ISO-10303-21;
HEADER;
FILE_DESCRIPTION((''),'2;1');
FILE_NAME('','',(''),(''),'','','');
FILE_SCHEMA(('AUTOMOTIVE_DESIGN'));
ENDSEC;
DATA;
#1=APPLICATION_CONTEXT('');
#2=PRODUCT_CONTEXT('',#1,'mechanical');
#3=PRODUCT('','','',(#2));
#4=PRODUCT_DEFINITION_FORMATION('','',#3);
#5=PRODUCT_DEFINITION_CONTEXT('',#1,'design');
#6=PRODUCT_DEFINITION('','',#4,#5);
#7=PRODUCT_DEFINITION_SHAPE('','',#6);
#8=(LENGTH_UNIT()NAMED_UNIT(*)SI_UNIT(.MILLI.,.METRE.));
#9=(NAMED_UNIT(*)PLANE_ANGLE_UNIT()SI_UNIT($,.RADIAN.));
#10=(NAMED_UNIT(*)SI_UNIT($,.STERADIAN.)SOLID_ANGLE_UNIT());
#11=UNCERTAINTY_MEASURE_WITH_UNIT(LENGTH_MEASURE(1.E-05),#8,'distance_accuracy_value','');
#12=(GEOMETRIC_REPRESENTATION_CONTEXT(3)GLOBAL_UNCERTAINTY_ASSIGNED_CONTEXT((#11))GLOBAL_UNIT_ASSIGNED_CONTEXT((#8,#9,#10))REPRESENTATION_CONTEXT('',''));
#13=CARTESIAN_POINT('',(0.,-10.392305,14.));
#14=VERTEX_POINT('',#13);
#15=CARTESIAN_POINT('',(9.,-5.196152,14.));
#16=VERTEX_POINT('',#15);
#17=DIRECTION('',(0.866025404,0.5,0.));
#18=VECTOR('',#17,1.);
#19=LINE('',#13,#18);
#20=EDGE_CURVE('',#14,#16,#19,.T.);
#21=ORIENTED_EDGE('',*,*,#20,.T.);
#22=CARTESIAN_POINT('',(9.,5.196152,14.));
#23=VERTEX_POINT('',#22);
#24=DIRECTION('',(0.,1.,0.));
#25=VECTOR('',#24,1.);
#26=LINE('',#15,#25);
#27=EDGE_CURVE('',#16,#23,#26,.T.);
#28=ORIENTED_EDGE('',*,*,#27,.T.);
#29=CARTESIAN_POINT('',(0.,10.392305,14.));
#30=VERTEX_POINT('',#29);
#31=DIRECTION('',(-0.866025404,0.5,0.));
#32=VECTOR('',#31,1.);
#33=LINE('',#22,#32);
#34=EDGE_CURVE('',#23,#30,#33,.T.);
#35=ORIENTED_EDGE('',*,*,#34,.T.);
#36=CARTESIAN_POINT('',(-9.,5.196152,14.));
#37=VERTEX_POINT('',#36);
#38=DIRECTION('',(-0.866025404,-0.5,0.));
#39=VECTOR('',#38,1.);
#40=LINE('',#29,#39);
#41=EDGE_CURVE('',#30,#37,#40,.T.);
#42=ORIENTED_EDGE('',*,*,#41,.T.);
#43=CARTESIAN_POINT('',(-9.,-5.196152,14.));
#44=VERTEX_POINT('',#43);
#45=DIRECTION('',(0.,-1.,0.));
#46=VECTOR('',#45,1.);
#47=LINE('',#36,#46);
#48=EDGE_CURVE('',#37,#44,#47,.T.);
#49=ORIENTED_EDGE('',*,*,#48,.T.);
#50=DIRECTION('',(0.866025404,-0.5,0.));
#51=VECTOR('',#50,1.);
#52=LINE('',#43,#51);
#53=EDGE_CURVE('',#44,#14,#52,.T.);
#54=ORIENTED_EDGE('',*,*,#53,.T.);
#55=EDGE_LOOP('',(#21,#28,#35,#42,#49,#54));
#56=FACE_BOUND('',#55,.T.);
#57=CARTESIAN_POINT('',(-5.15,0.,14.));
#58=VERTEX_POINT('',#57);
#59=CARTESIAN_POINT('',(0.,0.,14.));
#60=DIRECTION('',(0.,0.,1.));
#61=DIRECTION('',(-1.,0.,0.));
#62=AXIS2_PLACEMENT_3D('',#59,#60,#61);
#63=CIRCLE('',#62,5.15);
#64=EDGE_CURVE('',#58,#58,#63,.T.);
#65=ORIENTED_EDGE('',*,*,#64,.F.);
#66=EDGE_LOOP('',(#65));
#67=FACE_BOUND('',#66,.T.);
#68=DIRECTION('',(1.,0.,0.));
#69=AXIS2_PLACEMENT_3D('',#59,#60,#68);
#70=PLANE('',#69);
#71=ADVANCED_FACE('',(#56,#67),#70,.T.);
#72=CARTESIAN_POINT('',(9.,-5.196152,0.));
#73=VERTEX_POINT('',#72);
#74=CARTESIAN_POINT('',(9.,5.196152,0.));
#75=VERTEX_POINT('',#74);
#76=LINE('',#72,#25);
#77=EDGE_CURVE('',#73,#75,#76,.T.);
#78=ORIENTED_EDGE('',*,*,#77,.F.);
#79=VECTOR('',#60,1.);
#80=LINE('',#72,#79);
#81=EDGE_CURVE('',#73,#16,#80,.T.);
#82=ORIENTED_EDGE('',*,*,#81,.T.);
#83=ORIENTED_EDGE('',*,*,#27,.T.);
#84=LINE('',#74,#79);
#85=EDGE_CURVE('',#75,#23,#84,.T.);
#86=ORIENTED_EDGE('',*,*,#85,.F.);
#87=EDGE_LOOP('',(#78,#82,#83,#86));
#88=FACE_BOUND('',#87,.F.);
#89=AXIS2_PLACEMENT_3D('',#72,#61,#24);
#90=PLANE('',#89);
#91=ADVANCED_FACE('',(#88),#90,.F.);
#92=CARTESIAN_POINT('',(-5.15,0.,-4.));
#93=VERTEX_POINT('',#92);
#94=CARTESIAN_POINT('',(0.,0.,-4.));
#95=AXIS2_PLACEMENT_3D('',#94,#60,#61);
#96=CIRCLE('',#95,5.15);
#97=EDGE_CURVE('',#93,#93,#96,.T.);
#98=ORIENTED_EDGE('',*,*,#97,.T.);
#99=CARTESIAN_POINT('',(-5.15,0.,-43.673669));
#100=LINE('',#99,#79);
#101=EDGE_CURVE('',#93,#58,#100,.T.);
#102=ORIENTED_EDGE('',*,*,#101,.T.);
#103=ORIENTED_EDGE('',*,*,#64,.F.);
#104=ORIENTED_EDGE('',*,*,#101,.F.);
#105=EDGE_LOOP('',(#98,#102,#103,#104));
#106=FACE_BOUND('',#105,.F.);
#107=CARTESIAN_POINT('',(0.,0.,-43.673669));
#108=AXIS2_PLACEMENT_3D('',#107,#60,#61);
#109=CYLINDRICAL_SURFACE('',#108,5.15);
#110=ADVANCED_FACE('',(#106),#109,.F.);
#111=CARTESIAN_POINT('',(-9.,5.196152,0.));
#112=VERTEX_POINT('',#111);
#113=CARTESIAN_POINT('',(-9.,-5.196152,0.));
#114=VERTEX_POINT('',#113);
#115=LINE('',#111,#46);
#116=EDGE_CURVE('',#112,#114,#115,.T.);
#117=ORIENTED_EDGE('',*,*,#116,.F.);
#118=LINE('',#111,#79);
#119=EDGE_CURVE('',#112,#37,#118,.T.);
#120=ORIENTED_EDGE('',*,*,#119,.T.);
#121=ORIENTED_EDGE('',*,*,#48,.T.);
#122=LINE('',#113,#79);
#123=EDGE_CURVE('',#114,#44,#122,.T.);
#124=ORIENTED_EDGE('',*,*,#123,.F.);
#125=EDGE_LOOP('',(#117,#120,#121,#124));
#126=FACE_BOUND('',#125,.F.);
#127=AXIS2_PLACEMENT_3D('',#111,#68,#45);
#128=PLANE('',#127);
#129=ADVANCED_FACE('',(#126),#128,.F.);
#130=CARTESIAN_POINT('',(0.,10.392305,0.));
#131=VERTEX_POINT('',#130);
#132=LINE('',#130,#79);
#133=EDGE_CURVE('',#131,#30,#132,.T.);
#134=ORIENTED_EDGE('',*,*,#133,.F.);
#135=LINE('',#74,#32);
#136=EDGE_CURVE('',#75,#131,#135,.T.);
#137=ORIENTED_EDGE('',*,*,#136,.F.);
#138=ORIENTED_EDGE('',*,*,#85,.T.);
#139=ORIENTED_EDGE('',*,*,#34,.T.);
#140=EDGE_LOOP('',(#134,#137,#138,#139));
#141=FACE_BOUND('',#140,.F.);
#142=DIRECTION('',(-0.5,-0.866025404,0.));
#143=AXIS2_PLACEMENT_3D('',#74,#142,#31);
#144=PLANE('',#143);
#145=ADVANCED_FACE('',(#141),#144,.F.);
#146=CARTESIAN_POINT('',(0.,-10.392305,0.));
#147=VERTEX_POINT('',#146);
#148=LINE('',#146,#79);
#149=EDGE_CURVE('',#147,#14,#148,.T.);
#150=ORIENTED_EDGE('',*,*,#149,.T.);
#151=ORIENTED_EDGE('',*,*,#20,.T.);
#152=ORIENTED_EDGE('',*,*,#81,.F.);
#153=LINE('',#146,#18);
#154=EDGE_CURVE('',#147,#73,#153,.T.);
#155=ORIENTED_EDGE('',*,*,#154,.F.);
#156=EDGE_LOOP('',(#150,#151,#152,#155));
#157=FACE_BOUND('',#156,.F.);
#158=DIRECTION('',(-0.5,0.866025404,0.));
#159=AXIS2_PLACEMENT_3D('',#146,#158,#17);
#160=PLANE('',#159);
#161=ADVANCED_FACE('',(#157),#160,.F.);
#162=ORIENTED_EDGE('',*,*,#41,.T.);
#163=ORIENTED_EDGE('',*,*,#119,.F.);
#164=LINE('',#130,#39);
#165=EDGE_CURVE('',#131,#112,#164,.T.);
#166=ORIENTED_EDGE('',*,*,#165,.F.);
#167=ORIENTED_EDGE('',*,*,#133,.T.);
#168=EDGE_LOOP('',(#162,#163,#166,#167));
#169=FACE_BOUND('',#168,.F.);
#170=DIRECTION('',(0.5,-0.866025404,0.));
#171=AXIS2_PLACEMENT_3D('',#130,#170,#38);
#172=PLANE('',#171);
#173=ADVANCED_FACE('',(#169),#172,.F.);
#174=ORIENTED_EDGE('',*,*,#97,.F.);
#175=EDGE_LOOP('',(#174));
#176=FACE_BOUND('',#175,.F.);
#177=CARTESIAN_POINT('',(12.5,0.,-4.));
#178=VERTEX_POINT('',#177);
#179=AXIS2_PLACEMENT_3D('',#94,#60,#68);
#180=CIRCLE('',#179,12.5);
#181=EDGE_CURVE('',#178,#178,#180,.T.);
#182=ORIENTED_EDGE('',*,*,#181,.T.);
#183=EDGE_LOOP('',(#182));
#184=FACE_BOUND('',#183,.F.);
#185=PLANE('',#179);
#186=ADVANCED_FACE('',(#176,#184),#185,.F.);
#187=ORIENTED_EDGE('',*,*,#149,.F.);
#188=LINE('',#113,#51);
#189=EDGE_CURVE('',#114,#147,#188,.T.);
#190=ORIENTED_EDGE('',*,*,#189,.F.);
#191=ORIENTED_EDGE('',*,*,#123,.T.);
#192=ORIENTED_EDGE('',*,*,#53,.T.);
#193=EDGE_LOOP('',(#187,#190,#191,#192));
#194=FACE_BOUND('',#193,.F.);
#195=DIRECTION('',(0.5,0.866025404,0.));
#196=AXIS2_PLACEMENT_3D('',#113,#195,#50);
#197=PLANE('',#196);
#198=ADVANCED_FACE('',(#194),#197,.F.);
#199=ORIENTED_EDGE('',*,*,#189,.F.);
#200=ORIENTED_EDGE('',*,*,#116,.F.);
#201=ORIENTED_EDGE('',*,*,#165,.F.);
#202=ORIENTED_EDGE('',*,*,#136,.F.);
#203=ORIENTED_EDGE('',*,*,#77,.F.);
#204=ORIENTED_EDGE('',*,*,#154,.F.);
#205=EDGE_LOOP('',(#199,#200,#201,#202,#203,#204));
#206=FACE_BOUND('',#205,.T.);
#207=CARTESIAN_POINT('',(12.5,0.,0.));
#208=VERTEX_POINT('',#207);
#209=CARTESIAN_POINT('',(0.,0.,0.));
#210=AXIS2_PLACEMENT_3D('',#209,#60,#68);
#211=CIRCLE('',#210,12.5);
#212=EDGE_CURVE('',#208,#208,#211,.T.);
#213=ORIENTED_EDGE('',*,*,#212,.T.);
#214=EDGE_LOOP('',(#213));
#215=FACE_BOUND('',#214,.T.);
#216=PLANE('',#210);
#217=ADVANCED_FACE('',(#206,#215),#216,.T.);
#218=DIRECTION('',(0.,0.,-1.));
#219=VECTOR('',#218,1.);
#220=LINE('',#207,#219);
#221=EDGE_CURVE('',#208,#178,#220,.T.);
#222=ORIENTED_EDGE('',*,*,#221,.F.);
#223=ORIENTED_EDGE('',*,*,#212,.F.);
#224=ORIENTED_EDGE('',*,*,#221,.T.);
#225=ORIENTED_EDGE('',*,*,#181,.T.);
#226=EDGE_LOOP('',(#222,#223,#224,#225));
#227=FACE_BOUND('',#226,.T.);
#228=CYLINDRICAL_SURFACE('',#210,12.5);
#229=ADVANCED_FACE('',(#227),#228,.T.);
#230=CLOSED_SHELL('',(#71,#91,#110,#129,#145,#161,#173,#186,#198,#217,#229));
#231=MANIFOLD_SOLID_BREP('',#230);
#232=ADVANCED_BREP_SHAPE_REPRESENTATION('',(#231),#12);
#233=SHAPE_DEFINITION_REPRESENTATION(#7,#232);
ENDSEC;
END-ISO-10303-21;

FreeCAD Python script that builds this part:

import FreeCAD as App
import Part
import Sketcher
from FreeCAD import Vector
Q = App.Units.Quantity


def add_polygon(sketch, points):
    """Adds a closed chain of lines whose ends are joined by coincident constraints."""
    first, n = sketch.GeometryCount, len(points)
    for a, b in zip(points, points[1:] + points[:1]):
        sketch.addGeometry(Part.LineSegment(App.Vector(*a, 0), App.Vector(*b, 0)), False)
    for i in range(n):
        sketch.addConstraint(Sketcher.Constraint("Coincident", first + i, 2, first + (i + 1) % n, 1))

doc = App.newDocument("Part")
body = doc.addObject("PartDesign::Body", "Body")

# Sketch on XY plane
sketch1 = body.newObject("Sketcher::SketchObject", "Sketch")
sketch1.AttachmentSupport = (doc.getObject("XY_Plane"), [""])
sketch1.MapMode = "FlatFace"
sketch1.addGeometry(Part.Circle(Vector(0, 0, 0), Vector(0, 0, 1), 12), False)
sketch1.addConstraint([
    Sketcher.Constraint("Coincident", 0, 3, -1, 1),
    Sketcher.Constraint("Diameter", 0, Q("25 mm")),
])
pad1 = body.newObject("PartDesign::Pad", "Pad")
pad1.Profile = sketch1
pad1.Length = 4
pad1.Reversed = True

# Sketch on XY plane
sketch2 = body.newObject("Sketcher::SketchObject", "Sketch001")
sketch2.AttachmentSupport = (doc.getObject("XY_Plane"), [""])
sketch2.MapMode = "FlatFace"
add_polygon(sketch2, [(9, -5), (9, 5), (0, 10), (-9, 5), (-9, -5), (0, -10)])  # lines 0-5
sketch2.addConstraint([
    Sketcher.Constraint("Vertical", 0),
    Sketcher.Constraint("Vertical", 3),
    Sketcher.Constraint("Symmetric", 0, 2, 3, 2, -1, 1),
    Sketcher.Constraint("Symmetric", 1, 2, 4, 2, -1, 1),
    Sketcher.Constraint("PointOnObject", 1, 2, -2),
    Sketcher.Constraint("Parallel", 2, 5),
    Sketcher.Constraint("Horizontal", 0, 2, 2, 2),
    Sketcher.Constraint("Angle", 1, Q("150 deg")),
    Sketcher.Constraint("DistanceX", -1, 1, 0, 2, Q("9 mm")),
    Sketcher.Constraint("DistanceY", 0, 1, 0, 2, Q("10.392305 mm")),
])
pad2 = body.newObject("PartDesign::Pad", "Pad001")
pad2.Profile = sketch2
pad2.Length = 14

# Sketch on XY plane
sketch3 = body.newObject("Sketcher::SketchObject", "Sketch002")
sketch3.AttachmentSupport = (doc.getObject("XY_Plane"), [""])
sketch3.MapMode = "FlatFace"
sketch3.AttachmentOffset = App.Placement(Vector(0, 0, -4), App.Rotation())
sketch3.addGeometry(Part.Circle(Vector(0, 0, 0), Vector(0, 0, 1), 5), False)
sketch3.addConstraint([
    Sketcher.Constraint("Coincident", 0, 3, -1, 1),
    Sketcher.Constraint("Diameter", 0, Q("10.3 mm")),
])
doc.recompute()
hole = body.newObject("PartDesign::Hole", "Hole")
hole.Profile = sketch3
hole.ThreadType = "None"
hole.Diameter = 10.3
hole.DepthType = "ThroughAll"
hole.Reversed = True

doc.recompute()
